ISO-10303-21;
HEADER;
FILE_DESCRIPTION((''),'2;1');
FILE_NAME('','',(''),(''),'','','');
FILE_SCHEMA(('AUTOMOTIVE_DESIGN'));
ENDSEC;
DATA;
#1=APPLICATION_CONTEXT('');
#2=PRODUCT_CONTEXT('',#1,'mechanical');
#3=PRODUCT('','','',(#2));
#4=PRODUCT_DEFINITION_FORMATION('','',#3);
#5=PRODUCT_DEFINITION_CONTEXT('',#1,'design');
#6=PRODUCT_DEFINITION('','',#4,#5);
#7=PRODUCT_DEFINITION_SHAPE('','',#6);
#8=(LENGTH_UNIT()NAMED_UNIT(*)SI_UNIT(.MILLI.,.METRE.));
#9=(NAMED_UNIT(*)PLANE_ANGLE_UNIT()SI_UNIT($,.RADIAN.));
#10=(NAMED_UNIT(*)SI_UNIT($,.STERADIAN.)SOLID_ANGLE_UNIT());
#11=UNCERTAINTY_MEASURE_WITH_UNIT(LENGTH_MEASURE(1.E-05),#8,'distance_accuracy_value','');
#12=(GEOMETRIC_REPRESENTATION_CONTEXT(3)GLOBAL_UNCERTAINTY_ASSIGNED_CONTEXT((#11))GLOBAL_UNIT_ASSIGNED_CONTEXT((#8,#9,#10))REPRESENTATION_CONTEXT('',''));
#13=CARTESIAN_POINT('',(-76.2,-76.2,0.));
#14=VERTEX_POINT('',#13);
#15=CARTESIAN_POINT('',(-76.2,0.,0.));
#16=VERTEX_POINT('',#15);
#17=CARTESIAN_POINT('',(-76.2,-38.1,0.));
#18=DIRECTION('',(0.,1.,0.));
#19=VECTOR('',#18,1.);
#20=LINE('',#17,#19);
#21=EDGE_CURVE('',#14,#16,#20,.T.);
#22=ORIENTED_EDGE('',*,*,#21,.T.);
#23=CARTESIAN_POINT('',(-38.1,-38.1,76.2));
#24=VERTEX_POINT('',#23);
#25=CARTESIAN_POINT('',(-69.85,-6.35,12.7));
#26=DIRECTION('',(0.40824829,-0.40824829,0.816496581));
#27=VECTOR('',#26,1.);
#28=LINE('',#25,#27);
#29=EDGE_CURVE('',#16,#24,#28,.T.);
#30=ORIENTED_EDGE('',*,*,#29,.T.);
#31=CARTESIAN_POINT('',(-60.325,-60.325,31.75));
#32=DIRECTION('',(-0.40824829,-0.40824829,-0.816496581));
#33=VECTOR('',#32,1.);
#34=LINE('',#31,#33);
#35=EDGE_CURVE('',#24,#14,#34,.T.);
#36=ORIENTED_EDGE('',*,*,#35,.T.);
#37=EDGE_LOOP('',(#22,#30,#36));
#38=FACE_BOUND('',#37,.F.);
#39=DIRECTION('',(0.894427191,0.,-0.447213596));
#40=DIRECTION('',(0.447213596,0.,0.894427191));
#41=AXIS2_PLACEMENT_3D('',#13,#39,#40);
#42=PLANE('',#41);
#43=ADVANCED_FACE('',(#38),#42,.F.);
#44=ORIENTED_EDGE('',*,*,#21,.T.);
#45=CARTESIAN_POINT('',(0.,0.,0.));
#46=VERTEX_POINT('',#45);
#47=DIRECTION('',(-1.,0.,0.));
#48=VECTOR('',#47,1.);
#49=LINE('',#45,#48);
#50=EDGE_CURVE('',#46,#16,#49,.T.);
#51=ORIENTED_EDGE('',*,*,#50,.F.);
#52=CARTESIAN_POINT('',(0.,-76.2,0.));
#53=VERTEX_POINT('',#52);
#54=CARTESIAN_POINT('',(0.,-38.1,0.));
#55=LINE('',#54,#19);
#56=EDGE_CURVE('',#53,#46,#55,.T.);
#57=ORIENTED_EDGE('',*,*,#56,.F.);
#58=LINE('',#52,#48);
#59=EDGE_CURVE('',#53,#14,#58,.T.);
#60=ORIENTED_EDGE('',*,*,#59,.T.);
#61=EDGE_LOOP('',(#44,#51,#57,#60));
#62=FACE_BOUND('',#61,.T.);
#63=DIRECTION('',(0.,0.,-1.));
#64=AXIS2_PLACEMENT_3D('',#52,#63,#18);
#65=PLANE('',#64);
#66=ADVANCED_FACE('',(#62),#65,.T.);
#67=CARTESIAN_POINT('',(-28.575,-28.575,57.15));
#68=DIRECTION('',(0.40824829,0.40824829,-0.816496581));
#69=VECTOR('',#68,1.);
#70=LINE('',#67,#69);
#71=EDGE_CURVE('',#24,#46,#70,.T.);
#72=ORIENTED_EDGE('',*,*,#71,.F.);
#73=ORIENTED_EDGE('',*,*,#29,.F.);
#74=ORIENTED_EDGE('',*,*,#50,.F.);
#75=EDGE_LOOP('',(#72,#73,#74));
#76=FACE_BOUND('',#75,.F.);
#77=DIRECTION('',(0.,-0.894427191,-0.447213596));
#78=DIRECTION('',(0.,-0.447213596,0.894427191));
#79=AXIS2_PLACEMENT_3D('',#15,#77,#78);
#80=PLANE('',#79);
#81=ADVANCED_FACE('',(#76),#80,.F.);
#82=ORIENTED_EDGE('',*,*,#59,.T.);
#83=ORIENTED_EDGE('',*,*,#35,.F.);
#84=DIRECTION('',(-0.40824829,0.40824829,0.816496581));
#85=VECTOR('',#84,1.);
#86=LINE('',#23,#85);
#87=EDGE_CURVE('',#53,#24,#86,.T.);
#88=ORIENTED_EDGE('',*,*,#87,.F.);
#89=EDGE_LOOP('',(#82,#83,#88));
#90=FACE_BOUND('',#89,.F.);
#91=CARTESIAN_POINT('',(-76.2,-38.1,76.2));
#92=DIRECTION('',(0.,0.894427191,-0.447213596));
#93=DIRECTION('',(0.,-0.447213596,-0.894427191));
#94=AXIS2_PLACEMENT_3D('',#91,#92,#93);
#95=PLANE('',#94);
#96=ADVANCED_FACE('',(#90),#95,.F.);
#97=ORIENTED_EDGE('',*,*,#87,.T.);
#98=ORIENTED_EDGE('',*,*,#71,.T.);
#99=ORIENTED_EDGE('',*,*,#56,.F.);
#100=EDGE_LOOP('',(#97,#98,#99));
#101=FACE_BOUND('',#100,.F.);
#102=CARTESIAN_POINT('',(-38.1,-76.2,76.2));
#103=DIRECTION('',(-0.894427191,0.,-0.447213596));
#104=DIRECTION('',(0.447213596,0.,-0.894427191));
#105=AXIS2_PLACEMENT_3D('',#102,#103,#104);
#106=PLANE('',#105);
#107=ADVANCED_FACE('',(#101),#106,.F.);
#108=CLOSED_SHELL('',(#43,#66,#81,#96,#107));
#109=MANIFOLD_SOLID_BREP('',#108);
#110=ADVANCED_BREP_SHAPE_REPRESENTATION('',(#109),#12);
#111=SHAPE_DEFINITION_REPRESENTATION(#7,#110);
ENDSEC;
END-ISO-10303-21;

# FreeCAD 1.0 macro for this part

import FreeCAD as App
import Part
import Sketcher
from FreeCAD import Vector
Q = App.Units.Quantity

doc = App.newDocument("Part")
body = doc.addObject("PartDesign::Body", "Body")

# Sketch on YZ plane
sketch1 = body.newObject("Sketcher::SketchObject", "Sketch")
sketch1.AttachmentSupport = (doc.getObject("YZ_Plane"), [""])
sketch1.MapMode = "FlatFace"
sketch1.addGeometry([
    Part.LineSegment(Vector(-76, 76, 0), Vector(-76, 0, 0)),
    Part.LineSegment(Vector(-76, 0, 0), Vector(0, 0, 0)),
    Part.LineSegment(Vector(0, 0, 0), Vector(0, 76, 0)),
    Part.LineSegment(Vector(0, 76, 0), Vector(-76, 76, 0)),
], False)
sketch1.addConstraint([
    Sketcher.Constraint("Coincident", 0, 2, 1, 1),
    Sketcher.Constraint("Coincident", 1, 2, 2, 1),
    Sketcher.Constraint("Coincident", 2, 2, 3, 1),
    Sketcher.Constraint("Coincident", 3, 2, 0, 1),
    Sketcher.Constraint("Vertical", 0),
    Sketcher.Constraint("Horizontal", 1),
    Sketcher.Constraint("Vertical", 2),
    Sketcher.Constraint("Horizontal", 3),
    Sketcher.Constraint("Coincident", 1, 2, -1, 1),
    Sketcher.Constraint("Equal", 3, 0),
    Sketcher.Constraint("DistanceX", 1, 1, 1, 2, Q("3 in")),
])
pad1 = body.newObject("PartDesign::Pad", "Pad")
pad1.Profile = sketch1
pad1.Length = Q("3 in")
pad1.Reversed = True

# Sketch on YZ plane
sketch2 = body.newObject("Sketcher::SketchObject", "Sketch001")
sketch2.AttachmentSupport = (doc.getObject("YZ_Plane"), [""])
sketch2.MapMode = "FlatFace"
sketch2.AttachmentOffset = App.Placement(Vector(0, 0, -3 * 25.4), App.Rotation())
sketch2.addGeometry([
    Part.LineSegment(Vector(0, 76, 0), Vector(0, 0, 0)),  # 0
    Part.LineSegment(Vector(0, 0, 0), Vector(-38, 76, 0)),  # 1
    Part.LineSegment(Vector(-38, 76, 0), Vector(0, 76, 0)),  # 2
    Part.LineSegment(Vector(-38, 76, 0), Vector(-76, 0, 0)),  # 3
    Part.LineSegment(Vector(-76, 0, 0), Vector(-76, 76, 0)),  # 4
    Part.LineSegment(Vector(-76, 76, 0), Vector(-38, 76, 0)),  # 5
], False)
sketch2.addConstraint([
    Sketcher.Constraint("Coincident", 0, 2, 1, 1),
    Sketcher.Constraint("Coincident", 1, 2, 2, 1),
    Sketcher.Constraint("Coincident", 2, 2, 0, 1),
    Sketcher.Constraint("Coincident", 3, 2, 4, 1),
    Sketcher.Constraint("Coincident", 4, 2, 5, 1),
    Sketcher.Constraint("Coincident", 5, 2, 3, 1),
    Sketcher.Constraint("Vertical", 0),
    Sketcher.Constraint("Horizontal", 2),
    Sketcher.Constraint("Vertical", 4),
    Sketcher.Constraint("Horizontal", 5),
    Sketcher.Constraint("Coincident", 0, 2, -1, 1),
    Sketcher.Constraint("Coincident", 5, 2, 1, 2),
    Sketcher.Constraint("PointOnObject", 3, 2, -1),
    Sketcher.Constraint("Equal", 2, 5),
    Sketcher.Constraint("DistanceY", 0, 2, 0, 1, Q("3 in")),
    Sketcher.Constraint("DistanceX", 2, 1, 2, 2, Q("1.5 in")),
])
pocket1 = body.newObject("PartDesign::Pocket", "Pocket")
pocket1.Profile = sketch2
pocket1.Length = Q("3 in")
pocket1.Reversed = True

# Sketch on XZ plane
sketch3 = body.newObject("Sketcher::SketchObject", "Sketch002")
sketch3.AttachmentSupport = (doc.getObject("XZ_Plane"), [""])
sketch3.MapMode = "FlatFace"
sketch3.AttachmentOffset = App.Placement(Vector(0, 0, 3 * 25.4), App.Rotation())
sketch3.addGeometry([
    Part.LineSegment(Vector(-76, 0, 0), Vector(-38, 76, 0)),  # 0
    Part.LineSegment(Vector(-38, 76, 0), Vector(-76, 76, 0)),  # 1
    Part.LineSegment(Vector(-76, 76, 0), Vector(-76, 0, 0)),  # 2
    Part.LineSegment(Vector(0, 76, 0), Vector(-38, 76, 0)),  # 3
    Part.LineSegment(Vector(-38, 76, 0), Vector(0, 0, 0)),  # 4
    Part.LineSegment(Vector(0, 0, 0), Vector(0, 76, 0)),  # 5
], False)
sketch3.addConstraint([
    Sketcher.Constraint("Coincident", 0, 2, 1, 1),
    Sketcher.Constraint("Coincident", 1, 2, 2, 1),
    Sketcher.Constraint("Coincident", 2, 2, 0, 1),
    Sketcher.Constraint("Coincident", 3, 2, 4, 1),
    Sketcher.Constraint("Coincident", 4, 2, 5, 1),
    Sketcher.Constraint("Coincident", 5, 2, 3, 1),
    Sketcher.Constraint("Horizontal", 1),
    Sketcher.Constraint("Vertical", 2),
    Sketcher.Constraint("Horizontal", 3),
    Sketcher.Constraint("Vertical", 5),
    Sketcher.Constraint("Coincident", 4, 2, -1, 1),
    Sketcher.Constraint("Coincident", 3, 2, 0, 2),
    Sketcher.Constraint("PointOnObject", 2, 2, -1),
    Sketcher.Constraint("Equal", 1, 3),
    Sketcher.Constraint("DistanceY", 2, 2, 2, 1, Q("3 in")),
    Sketcher.Constraint("DistanceX", 1, 2, 1, 1, Q("1.5 in")),
])
pocket2 = body.newObject("PartDesign::Pocket", "Pocket001")
pocket2.Profile = sketch3
pocket2.Length = Q("3 in")

doc.recompute()
